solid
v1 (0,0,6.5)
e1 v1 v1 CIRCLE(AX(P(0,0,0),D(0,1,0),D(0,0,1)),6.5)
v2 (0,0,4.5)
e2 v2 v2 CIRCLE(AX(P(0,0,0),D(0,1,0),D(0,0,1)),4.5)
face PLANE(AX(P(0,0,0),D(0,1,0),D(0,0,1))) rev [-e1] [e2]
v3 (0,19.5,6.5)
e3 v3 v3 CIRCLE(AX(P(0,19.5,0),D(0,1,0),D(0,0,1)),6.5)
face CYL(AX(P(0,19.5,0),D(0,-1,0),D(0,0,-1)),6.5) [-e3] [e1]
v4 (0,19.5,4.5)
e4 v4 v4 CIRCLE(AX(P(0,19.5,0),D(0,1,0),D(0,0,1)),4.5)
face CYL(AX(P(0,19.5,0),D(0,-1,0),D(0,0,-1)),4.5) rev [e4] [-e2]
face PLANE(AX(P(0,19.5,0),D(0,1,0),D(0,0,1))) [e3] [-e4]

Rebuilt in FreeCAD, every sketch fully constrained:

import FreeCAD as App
import Part
import Sketcher
Q = App.Units.Quantity

doc = App.newDocument("Part")
params = doc.addObject("Spreadsheet::Sheet", "Params")
for row, (alias, value) in enumerate([
    ("sketch1_diameter", "13 mm"),
    ("sketch1_diameter2", "9 mm"),
    ("pad1_length", "19.5 mm"),
], start=1):
    params.set(f"A{row}", alias)
    params.set(f"B{row}", "=" + value)
    params.setAlias(f"B{row}", alias)

body = doc.addObject("PartDesign::Body", "Body")

# Sketch on XZ plane
sketch1 = body.newObject("Sketcher::SketchObject", "Sketch")
sketch1.AttachmentSupport = (doc.getObject("XZ_Plane"), [""])
sketch1.MapMode = "FlatFace"
sketch1.addGeometry(Part.Circle(App.Vector(0, 0, 0), App.Vector(0, 0, 1), 6.5), False)
sketch1.addGeometry(Part.Circle(App.Vector(0, 0, 0), App.Vector(0, 0, 1), 4.5), False)
sketch1.addConstraint(Sketcher.Constraint("Coincident", 0, 3, -1, 1))
sketch1.addConstraint(Sketcher.Constraint("Coincident", 1, 3, -1, 1))
sketch1.addConstraint(Sketcher.Constraint("Diameter", 0, Q("13 mm")))
sketch1.addConstraint(Sketcher.Constraint("Diameter", 1, Q("9 mm")))
sketch1.setExpression("Constraints[2]", "Params.sketch1_diameter")
sketch1.setExpression("Constraints[3]", "Params.sketch1_diameter2")
pad1 = body.newObject("PartDesign::Pad", "Pad")
pad1.Profile = sketch1
pad1.setExpression("Length", "Params.pad1_length")
pad1.Reversed = True

doc.recompute()
